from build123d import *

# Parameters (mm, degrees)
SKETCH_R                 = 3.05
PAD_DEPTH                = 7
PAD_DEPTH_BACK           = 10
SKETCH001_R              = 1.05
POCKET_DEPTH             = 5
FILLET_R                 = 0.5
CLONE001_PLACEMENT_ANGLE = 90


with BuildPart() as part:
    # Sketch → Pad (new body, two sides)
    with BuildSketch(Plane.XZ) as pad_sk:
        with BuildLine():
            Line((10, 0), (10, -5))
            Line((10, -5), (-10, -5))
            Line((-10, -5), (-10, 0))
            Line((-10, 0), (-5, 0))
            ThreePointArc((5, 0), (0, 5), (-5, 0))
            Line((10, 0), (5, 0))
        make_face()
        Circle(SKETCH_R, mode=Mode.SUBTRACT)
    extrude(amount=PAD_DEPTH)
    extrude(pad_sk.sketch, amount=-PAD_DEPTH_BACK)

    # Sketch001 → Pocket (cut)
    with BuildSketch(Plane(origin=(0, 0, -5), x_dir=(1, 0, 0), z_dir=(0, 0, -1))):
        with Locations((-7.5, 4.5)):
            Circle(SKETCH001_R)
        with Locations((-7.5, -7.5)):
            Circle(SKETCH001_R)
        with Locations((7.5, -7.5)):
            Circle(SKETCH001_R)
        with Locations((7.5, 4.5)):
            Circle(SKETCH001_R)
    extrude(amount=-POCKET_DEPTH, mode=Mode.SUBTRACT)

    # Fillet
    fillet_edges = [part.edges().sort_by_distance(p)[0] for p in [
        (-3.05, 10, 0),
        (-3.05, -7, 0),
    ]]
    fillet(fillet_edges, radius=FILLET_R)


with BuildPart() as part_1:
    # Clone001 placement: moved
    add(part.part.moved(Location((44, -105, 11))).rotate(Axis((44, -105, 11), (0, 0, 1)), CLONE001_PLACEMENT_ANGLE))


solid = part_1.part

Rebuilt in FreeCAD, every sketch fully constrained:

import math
import FreeCAD as App
import Part
import Sketcher

V = App.Vector


def edges_at(feature, points):
    """Names of the edges that pass closest to the given points."""
    edges = feature.Shape.Edges
    near = lambda p: min(range(len(edges)), key=lambda i: edges[i].distToShape(Part.Vertex(*p))[0])
    return sorted({f"Edge{near(p) + 1}" for p in points})

doc = App.newDocument("Part")
params = doc.addObject("Spreadsheet::Sheet", "Params")
for row, (alias, value) in enumerate([
    ("sketch1_radius", "5 mm"),
    ("sketch1_diameter", "6.1 mm"),
    ("sketch1_width", "5 mm"),
    ("pad1_length", "7 mm"),
    ("pad1_length2", "10 mm"),
    ("sketch2_diameter", "2.1 mm"),
    ("pocket1_length", "5 mm"),
    ("fillet_radius", "0.5 mm"),
], start=1):
    params.set(f"A{row}", alias)
    params.set(f"B{row}", "=" + value)
    params.setAlias(f"B{row}", alias)

body = doc.addObject("PartDesign::Body", "Body")

# Sketch on XZ plane
sketch1 = doc.addObject("Sketcher::SketchObject", "Sketch")
body.addObject(sketch1)
sketch1.AttachmentSupport = (doc.XZ_Plane, [""])
sketch1.MapMode = "FlatFace"
sketch1.addGeometry([
    Part.LineSegment(V(10, -5, 0), V(10, 0, 0)),  # 0
    Part.LineSegment(V(10, 0, 0), V(5, 0, 0)),  # 1
    Part.ArcOfCircle(Part.Circle(V(0, 0, 0), V(0, 0, 1), 5), math.radians(0), math.radians(180)),  # 2
    Part.LineSegment(V(-5, 0, 0), V(-10, 0, 0)),  # 3
    Part.LineSegment(V(-10, 0, 0), V(-10, -5, 0)),  # 4
    Part.LineSegment(V(-10, -5, 0), V(10, -5, 0)),  # 5
    Part.Circle(V(0, 0, 0), V(0, 0, 1), 3.05),  # 6
], False)
sketch1.addConstraint([
    Sketcher.Constraint("Coincident", 0, 2, 1, 1),
    Sketcher.Constraint("Coincident", 1, 2, 2, 1),
    Sketcher.Constraint("Coincident", 2, 2, 3, 1),
    Sketcher.Constraint("Coincident", 3, 2, 4, 1),
    Sketcher.Constraint("Coincident", 4, 2, 5, 1),
    Sketcher.Constraint("Coincident", 5, 2, 0, 1),
    Sketcher.Constraint("Vertical", 0),
    Sketcher.Constraint("Horizontal", 1),
    Sketcher.Constraint("Horizontal", 3),
    Sketcher.Constraint("Vertical", 4),
    Sketcher.Constraint("Horizontal", 5),
    Sketcher.Constraint("Coincident", 2, 3, -1, 1),
    Sketcher.Constraint("Coincident", 6, 3, -1, 1),
    Sketcher.Constraint("Symmetric", 0, 2, 3, 2, -1, 1),
    Sketcher.Constraint("PointOnObject", 0, 2, -1),
    Sketcher.Constraint("Equal", 3, 0),
    Sketcher.Constraint("Radius", 2, 5.0),
    Sketcher.Constraint("Diameter", 6, 6.1),
    Sketcher.Constraint("DistanceX", 1, 2, 1, 1, 5.0),
])
sketch1.setExpression("Constraints[16]", "Params.sketch1_radius")
sketch1.setExpression("Constraints[17]", "Params.sketch1_diameter")
sketch1.setExpression("Constraints[18]", "Params.sketch1_width")
pad1 = doc.addObject("PartDesign::Pad", "Pad")
body.addObject(pad1)
pad1.Profile = sketch1
pad1.Type = "TwoLengths"
pad1.setExpression("Length", "Params.pad1_length")
pad1.setExpression("Length2", "Params.pad1_length2")

# Sketch on XY plane
sketch2 = doc.addObject("Sketcher::SketchObject", "Sketch001")
body.addObject(sketch2)
sketch2.AttachmentSupport = (doc.XY_Plane, [""])
sketch2.MapMode = "FlatFace"
sketch2.AttachmentOffset = App.Placement(V(0, 0, -5), App.Rotation())
sketch2.addGeometry([
    Part.Circle(V(-7.5, -4.5, 0), V(0, 0, 1), 1.05),
    Part.Circle(V(-7.5, 7.5, 0), V(0, 0, 1), 1.05),
    Part.Circle(V(7.5, 7.5, 0), V(0, 0, 1), 1.05),
    Part.Circle(V(7.5, -4.5, 0), V(0, 0, 1), 1.05),
], False)
sketch2.addConstraint([
    Sketcher.Constraint("Equal", 0, 1),
    Sketcher.Constraint("Equal", 1, 2),
    Sketcher.Constraint("Equal", 2, 3),
    Sketcher.Constraint("Symmetric", 1, 3, 2, 3, -2),
    Sketcher.Constraint("Symmetric", 0, 3, 3, 3, -2),
    Sketcher.Constraint("Vertical", 0, 3, 1, 3),
    Sketcher.Constraint("Diameter", 0, 2.1),
    Sketcher.Constraint("DistanceY", 0, 3, 1, 3, 12.0),
    Sketcher.Constraint("DistanceX", 1, 3, 2, 3, 15.0),
    Sketcher.Constraint("DistanceY", 0, 3, -1, 1, 4.5),
])
sketch2.setExpression("Constraints[6]", "Params.sketch2_diameter")
pocket1 = doc.addObject("PartDesign::Pocket", "Pocket")
body.addObject(pocket1)
pocket1.Profile = sketch2
pocket1.setExpression("Length", "Params.pocket1_length")
pocket1.Reversed = True
doc.recompute()

fillet = doc.addObject("PartDesign::Fillet", "Fillet")
body.addObject(fillet)
fillet.Base = (pocket1, edges_at(pocket1, [(-3.05, 10, 0), (-3.05, -7, 0)]))
fillet.setExpression("Radius", "Params.fillet_radius")
body2 = doc.addObject("PartDesign::Body", "Body001")
doc.recompute()

body.Placement = App.Placement(V(44, -105, 11), App.Rotation(V(0, 0, 1), 90))
boolean = doc.addObject("PartDesign::Boolean", "Boolean")
body2.addObject(boolean)
boolean.Type = "Fuse"
boolean.addObjects([body])

doc.recompute()
